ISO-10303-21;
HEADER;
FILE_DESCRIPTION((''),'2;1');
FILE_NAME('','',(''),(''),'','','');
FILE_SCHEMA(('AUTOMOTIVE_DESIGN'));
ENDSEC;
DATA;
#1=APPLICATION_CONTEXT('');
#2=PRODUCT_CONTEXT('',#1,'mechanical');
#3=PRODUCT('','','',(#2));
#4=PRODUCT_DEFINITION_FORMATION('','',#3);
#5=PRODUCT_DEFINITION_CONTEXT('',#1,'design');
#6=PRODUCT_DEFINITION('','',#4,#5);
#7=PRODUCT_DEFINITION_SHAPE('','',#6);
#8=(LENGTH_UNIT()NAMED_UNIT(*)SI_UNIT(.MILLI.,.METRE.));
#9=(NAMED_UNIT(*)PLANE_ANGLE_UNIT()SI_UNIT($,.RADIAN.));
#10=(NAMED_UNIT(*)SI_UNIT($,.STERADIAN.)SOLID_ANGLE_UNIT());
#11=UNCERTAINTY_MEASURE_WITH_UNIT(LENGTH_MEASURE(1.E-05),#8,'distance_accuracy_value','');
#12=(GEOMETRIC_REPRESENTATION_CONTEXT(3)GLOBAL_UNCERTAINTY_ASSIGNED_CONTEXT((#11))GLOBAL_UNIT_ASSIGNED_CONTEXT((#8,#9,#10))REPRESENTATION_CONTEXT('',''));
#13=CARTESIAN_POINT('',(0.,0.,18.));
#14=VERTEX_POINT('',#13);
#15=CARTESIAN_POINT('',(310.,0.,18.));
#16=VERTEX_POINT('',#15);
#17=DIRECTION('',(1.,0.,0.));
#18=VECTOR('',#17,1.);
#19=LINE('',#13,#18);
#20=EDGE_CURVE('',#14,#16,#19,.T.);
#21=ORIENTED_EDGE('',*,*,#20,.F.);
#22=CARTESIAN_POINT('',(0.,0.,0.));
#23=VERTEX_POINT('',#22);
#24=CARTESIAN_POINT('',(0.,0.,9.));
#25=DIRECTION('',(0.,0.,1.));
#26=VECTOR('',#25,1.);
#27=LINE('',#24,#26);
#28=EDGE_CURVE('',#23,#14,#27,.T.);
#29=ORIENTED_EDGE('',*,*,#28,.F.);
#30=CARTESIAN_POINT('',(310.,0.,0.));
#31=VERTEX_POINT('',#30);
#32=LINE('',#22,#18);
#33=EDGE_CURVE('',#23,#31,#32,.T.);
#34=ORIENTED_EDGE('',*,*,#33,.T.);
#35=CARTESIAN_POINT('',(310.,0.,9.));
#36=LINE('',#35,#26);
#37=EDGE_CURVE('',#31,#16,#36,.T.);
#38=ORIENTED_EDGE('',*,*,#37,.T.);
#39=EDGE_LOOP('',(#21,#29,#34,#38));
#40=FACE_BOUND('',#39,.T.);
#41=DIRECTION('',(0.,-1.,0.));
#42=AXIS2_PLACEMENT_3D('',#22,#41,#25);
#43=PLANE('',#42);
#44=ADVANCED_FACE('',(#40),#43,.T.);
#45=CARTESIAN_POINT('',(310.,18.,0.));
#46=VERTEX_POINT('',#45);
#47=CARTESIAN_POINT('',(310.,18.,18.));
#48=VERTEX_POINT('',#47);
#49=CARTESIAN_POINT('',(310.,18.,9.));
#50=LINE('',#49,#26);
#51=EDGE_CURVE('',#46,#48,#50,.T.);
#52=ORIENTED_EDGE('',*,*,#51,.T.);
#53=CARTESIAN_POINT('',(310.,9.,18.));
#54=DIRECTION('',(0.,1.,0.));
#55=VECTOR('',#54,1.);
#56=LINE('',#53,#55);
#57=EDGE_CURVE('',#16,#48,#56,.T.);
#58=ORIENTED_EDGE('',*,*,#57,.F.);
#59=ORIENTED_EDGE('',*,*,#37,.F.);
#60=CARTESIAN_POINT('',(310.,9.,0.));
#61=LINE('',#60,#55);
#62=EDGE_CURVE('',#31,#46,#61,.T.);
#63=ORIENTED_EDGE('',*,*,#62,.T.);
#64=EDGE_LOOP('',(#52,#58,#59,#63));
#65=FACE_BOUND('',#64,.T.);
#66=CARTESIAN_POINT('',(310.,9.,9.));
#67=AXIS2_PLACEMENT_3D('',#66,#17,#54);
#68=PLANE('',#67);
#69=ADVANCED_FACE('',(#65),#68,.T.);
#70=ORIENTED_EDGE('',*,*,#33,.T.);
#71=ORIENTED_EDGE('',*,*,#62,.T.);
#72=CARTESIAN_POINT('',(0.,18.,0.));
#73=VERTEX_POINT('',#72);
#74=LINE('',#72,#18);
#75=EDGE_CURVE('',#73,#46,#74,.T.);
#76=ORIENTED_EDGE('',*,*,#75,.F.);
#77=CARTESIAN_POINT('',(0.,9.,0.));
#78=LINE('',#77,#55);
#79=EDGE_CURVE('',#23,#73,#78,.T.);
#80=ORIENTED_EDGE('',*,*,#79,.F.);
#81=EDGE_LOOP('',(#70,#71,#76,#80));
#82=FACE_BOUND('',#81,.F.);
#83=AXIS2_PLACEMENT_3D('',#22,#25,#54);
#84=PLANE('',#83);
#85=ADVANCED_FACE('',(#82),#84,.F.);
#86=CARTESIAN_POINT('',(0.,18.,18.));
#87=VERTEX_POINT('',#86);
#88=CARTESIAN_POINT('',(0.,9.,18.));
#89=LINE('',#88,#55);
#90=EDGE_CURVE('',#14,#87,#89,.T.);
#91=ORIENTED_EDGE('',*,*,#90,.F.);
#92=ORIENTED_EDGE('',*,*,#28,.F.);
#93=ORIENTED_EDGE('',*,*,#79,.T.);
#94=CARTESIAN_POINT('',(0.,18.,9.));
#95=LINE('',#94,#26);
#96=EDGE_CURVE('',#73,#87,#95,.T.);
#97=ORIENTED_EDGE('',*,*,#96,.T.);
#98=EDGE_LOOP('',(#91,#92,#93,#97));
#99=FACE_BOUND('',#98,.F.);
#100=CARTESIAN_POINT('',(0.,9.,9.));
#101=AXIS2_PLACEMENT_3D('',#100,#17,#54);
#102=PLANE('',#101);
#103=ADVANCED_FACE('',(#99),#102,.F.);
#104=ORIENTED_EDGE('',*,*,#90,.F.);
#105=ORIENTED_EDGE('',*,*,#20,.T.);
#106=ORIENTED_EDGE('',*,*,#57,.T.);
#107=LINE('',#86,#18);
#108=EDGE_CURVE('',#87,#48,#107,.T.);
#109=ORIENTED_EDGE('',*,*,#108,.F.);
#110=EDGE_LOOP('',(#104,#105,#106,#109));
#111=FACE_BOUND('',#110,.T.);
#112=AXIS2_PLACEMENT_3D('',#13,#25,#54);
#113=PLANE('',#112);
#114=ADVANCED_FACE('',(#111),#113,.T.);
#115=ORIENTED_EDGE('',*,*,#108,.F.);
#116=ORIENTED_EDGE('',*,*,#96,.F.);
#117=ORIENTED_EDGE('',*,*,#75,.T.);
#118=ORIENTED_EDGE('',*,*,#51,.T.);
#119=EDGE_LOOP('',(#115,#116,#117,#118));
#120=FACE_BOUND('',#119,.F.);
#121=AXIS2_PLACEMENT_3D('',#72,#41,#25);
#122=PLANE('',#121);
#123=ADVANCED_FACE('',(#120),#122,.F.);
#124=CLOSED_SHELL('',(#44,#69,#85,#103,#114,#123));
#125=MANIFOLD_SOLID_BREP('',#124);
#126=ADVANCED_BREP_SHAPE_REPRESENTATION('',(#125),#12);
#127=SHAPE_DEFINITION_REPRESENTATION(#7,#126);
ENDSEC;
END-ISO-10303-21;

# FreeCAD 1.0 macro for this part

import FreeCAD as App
import Part
import Sketcher

doc = App.newDocument("Part")
body = doc.addObject("PartDesign::Body", "Body")

# Sketch on YZ plane
sketch1 = body.newObject("Sketcher::SketchObject", "Sketch")
sketch1.AttachmentSupport = (doc.getObject("YZ_Plane"), [""])
sketch1.MapMode = "FlatFace"
sketch1.addGeometry([
    Part.LineSegment(App.Vector(0, 18, 0), App.Vector(0, 0, 0)),
    Part.LineSegment(App.Vector(0, 0, 0), App.Vector(18, 0, 0)),
    Part.LineSegment(App.Vector(18, 0, 0), App.Vector(18, 18, 0)),
    Part.LineSegment(App.Vector(18, 18, 0), App.Vector(0, 18, 0)),
], False)
sketch1.addConstraint([
    Sketcher.Constraint("Coincident", 0, 2, 1, 1),
    Sketcher.Constraint("Coincident", 1, 2, 2, 1),
    Sketcher.Constraint("Coincident", 2, 2, 3, 1),
    Sketcher.Constraint("Coincident", 3, 2, 0, 1),
    Sketcher.Constraint("Vertical", 0),
    Sketcher.Constraint("Horizontal", 1),
    Sketcher.Constraint("Vertical", 2),
    Sketcher.Constraint("Horizontal", 3),
    Sketcher.Constraint("Coincident", 0, 2, -1, 1),
    Sketcher.Constraint("Equal", 3, 0),
    Sketcher.Constraint("DistanceX", 1, 1, 1, 2, 18.0),
])
pad1 = body.newObject("PartDesign::Pad", "Pad")
pad1.Profile = sketch1
pad1.Length = 310

doc.recompute()
